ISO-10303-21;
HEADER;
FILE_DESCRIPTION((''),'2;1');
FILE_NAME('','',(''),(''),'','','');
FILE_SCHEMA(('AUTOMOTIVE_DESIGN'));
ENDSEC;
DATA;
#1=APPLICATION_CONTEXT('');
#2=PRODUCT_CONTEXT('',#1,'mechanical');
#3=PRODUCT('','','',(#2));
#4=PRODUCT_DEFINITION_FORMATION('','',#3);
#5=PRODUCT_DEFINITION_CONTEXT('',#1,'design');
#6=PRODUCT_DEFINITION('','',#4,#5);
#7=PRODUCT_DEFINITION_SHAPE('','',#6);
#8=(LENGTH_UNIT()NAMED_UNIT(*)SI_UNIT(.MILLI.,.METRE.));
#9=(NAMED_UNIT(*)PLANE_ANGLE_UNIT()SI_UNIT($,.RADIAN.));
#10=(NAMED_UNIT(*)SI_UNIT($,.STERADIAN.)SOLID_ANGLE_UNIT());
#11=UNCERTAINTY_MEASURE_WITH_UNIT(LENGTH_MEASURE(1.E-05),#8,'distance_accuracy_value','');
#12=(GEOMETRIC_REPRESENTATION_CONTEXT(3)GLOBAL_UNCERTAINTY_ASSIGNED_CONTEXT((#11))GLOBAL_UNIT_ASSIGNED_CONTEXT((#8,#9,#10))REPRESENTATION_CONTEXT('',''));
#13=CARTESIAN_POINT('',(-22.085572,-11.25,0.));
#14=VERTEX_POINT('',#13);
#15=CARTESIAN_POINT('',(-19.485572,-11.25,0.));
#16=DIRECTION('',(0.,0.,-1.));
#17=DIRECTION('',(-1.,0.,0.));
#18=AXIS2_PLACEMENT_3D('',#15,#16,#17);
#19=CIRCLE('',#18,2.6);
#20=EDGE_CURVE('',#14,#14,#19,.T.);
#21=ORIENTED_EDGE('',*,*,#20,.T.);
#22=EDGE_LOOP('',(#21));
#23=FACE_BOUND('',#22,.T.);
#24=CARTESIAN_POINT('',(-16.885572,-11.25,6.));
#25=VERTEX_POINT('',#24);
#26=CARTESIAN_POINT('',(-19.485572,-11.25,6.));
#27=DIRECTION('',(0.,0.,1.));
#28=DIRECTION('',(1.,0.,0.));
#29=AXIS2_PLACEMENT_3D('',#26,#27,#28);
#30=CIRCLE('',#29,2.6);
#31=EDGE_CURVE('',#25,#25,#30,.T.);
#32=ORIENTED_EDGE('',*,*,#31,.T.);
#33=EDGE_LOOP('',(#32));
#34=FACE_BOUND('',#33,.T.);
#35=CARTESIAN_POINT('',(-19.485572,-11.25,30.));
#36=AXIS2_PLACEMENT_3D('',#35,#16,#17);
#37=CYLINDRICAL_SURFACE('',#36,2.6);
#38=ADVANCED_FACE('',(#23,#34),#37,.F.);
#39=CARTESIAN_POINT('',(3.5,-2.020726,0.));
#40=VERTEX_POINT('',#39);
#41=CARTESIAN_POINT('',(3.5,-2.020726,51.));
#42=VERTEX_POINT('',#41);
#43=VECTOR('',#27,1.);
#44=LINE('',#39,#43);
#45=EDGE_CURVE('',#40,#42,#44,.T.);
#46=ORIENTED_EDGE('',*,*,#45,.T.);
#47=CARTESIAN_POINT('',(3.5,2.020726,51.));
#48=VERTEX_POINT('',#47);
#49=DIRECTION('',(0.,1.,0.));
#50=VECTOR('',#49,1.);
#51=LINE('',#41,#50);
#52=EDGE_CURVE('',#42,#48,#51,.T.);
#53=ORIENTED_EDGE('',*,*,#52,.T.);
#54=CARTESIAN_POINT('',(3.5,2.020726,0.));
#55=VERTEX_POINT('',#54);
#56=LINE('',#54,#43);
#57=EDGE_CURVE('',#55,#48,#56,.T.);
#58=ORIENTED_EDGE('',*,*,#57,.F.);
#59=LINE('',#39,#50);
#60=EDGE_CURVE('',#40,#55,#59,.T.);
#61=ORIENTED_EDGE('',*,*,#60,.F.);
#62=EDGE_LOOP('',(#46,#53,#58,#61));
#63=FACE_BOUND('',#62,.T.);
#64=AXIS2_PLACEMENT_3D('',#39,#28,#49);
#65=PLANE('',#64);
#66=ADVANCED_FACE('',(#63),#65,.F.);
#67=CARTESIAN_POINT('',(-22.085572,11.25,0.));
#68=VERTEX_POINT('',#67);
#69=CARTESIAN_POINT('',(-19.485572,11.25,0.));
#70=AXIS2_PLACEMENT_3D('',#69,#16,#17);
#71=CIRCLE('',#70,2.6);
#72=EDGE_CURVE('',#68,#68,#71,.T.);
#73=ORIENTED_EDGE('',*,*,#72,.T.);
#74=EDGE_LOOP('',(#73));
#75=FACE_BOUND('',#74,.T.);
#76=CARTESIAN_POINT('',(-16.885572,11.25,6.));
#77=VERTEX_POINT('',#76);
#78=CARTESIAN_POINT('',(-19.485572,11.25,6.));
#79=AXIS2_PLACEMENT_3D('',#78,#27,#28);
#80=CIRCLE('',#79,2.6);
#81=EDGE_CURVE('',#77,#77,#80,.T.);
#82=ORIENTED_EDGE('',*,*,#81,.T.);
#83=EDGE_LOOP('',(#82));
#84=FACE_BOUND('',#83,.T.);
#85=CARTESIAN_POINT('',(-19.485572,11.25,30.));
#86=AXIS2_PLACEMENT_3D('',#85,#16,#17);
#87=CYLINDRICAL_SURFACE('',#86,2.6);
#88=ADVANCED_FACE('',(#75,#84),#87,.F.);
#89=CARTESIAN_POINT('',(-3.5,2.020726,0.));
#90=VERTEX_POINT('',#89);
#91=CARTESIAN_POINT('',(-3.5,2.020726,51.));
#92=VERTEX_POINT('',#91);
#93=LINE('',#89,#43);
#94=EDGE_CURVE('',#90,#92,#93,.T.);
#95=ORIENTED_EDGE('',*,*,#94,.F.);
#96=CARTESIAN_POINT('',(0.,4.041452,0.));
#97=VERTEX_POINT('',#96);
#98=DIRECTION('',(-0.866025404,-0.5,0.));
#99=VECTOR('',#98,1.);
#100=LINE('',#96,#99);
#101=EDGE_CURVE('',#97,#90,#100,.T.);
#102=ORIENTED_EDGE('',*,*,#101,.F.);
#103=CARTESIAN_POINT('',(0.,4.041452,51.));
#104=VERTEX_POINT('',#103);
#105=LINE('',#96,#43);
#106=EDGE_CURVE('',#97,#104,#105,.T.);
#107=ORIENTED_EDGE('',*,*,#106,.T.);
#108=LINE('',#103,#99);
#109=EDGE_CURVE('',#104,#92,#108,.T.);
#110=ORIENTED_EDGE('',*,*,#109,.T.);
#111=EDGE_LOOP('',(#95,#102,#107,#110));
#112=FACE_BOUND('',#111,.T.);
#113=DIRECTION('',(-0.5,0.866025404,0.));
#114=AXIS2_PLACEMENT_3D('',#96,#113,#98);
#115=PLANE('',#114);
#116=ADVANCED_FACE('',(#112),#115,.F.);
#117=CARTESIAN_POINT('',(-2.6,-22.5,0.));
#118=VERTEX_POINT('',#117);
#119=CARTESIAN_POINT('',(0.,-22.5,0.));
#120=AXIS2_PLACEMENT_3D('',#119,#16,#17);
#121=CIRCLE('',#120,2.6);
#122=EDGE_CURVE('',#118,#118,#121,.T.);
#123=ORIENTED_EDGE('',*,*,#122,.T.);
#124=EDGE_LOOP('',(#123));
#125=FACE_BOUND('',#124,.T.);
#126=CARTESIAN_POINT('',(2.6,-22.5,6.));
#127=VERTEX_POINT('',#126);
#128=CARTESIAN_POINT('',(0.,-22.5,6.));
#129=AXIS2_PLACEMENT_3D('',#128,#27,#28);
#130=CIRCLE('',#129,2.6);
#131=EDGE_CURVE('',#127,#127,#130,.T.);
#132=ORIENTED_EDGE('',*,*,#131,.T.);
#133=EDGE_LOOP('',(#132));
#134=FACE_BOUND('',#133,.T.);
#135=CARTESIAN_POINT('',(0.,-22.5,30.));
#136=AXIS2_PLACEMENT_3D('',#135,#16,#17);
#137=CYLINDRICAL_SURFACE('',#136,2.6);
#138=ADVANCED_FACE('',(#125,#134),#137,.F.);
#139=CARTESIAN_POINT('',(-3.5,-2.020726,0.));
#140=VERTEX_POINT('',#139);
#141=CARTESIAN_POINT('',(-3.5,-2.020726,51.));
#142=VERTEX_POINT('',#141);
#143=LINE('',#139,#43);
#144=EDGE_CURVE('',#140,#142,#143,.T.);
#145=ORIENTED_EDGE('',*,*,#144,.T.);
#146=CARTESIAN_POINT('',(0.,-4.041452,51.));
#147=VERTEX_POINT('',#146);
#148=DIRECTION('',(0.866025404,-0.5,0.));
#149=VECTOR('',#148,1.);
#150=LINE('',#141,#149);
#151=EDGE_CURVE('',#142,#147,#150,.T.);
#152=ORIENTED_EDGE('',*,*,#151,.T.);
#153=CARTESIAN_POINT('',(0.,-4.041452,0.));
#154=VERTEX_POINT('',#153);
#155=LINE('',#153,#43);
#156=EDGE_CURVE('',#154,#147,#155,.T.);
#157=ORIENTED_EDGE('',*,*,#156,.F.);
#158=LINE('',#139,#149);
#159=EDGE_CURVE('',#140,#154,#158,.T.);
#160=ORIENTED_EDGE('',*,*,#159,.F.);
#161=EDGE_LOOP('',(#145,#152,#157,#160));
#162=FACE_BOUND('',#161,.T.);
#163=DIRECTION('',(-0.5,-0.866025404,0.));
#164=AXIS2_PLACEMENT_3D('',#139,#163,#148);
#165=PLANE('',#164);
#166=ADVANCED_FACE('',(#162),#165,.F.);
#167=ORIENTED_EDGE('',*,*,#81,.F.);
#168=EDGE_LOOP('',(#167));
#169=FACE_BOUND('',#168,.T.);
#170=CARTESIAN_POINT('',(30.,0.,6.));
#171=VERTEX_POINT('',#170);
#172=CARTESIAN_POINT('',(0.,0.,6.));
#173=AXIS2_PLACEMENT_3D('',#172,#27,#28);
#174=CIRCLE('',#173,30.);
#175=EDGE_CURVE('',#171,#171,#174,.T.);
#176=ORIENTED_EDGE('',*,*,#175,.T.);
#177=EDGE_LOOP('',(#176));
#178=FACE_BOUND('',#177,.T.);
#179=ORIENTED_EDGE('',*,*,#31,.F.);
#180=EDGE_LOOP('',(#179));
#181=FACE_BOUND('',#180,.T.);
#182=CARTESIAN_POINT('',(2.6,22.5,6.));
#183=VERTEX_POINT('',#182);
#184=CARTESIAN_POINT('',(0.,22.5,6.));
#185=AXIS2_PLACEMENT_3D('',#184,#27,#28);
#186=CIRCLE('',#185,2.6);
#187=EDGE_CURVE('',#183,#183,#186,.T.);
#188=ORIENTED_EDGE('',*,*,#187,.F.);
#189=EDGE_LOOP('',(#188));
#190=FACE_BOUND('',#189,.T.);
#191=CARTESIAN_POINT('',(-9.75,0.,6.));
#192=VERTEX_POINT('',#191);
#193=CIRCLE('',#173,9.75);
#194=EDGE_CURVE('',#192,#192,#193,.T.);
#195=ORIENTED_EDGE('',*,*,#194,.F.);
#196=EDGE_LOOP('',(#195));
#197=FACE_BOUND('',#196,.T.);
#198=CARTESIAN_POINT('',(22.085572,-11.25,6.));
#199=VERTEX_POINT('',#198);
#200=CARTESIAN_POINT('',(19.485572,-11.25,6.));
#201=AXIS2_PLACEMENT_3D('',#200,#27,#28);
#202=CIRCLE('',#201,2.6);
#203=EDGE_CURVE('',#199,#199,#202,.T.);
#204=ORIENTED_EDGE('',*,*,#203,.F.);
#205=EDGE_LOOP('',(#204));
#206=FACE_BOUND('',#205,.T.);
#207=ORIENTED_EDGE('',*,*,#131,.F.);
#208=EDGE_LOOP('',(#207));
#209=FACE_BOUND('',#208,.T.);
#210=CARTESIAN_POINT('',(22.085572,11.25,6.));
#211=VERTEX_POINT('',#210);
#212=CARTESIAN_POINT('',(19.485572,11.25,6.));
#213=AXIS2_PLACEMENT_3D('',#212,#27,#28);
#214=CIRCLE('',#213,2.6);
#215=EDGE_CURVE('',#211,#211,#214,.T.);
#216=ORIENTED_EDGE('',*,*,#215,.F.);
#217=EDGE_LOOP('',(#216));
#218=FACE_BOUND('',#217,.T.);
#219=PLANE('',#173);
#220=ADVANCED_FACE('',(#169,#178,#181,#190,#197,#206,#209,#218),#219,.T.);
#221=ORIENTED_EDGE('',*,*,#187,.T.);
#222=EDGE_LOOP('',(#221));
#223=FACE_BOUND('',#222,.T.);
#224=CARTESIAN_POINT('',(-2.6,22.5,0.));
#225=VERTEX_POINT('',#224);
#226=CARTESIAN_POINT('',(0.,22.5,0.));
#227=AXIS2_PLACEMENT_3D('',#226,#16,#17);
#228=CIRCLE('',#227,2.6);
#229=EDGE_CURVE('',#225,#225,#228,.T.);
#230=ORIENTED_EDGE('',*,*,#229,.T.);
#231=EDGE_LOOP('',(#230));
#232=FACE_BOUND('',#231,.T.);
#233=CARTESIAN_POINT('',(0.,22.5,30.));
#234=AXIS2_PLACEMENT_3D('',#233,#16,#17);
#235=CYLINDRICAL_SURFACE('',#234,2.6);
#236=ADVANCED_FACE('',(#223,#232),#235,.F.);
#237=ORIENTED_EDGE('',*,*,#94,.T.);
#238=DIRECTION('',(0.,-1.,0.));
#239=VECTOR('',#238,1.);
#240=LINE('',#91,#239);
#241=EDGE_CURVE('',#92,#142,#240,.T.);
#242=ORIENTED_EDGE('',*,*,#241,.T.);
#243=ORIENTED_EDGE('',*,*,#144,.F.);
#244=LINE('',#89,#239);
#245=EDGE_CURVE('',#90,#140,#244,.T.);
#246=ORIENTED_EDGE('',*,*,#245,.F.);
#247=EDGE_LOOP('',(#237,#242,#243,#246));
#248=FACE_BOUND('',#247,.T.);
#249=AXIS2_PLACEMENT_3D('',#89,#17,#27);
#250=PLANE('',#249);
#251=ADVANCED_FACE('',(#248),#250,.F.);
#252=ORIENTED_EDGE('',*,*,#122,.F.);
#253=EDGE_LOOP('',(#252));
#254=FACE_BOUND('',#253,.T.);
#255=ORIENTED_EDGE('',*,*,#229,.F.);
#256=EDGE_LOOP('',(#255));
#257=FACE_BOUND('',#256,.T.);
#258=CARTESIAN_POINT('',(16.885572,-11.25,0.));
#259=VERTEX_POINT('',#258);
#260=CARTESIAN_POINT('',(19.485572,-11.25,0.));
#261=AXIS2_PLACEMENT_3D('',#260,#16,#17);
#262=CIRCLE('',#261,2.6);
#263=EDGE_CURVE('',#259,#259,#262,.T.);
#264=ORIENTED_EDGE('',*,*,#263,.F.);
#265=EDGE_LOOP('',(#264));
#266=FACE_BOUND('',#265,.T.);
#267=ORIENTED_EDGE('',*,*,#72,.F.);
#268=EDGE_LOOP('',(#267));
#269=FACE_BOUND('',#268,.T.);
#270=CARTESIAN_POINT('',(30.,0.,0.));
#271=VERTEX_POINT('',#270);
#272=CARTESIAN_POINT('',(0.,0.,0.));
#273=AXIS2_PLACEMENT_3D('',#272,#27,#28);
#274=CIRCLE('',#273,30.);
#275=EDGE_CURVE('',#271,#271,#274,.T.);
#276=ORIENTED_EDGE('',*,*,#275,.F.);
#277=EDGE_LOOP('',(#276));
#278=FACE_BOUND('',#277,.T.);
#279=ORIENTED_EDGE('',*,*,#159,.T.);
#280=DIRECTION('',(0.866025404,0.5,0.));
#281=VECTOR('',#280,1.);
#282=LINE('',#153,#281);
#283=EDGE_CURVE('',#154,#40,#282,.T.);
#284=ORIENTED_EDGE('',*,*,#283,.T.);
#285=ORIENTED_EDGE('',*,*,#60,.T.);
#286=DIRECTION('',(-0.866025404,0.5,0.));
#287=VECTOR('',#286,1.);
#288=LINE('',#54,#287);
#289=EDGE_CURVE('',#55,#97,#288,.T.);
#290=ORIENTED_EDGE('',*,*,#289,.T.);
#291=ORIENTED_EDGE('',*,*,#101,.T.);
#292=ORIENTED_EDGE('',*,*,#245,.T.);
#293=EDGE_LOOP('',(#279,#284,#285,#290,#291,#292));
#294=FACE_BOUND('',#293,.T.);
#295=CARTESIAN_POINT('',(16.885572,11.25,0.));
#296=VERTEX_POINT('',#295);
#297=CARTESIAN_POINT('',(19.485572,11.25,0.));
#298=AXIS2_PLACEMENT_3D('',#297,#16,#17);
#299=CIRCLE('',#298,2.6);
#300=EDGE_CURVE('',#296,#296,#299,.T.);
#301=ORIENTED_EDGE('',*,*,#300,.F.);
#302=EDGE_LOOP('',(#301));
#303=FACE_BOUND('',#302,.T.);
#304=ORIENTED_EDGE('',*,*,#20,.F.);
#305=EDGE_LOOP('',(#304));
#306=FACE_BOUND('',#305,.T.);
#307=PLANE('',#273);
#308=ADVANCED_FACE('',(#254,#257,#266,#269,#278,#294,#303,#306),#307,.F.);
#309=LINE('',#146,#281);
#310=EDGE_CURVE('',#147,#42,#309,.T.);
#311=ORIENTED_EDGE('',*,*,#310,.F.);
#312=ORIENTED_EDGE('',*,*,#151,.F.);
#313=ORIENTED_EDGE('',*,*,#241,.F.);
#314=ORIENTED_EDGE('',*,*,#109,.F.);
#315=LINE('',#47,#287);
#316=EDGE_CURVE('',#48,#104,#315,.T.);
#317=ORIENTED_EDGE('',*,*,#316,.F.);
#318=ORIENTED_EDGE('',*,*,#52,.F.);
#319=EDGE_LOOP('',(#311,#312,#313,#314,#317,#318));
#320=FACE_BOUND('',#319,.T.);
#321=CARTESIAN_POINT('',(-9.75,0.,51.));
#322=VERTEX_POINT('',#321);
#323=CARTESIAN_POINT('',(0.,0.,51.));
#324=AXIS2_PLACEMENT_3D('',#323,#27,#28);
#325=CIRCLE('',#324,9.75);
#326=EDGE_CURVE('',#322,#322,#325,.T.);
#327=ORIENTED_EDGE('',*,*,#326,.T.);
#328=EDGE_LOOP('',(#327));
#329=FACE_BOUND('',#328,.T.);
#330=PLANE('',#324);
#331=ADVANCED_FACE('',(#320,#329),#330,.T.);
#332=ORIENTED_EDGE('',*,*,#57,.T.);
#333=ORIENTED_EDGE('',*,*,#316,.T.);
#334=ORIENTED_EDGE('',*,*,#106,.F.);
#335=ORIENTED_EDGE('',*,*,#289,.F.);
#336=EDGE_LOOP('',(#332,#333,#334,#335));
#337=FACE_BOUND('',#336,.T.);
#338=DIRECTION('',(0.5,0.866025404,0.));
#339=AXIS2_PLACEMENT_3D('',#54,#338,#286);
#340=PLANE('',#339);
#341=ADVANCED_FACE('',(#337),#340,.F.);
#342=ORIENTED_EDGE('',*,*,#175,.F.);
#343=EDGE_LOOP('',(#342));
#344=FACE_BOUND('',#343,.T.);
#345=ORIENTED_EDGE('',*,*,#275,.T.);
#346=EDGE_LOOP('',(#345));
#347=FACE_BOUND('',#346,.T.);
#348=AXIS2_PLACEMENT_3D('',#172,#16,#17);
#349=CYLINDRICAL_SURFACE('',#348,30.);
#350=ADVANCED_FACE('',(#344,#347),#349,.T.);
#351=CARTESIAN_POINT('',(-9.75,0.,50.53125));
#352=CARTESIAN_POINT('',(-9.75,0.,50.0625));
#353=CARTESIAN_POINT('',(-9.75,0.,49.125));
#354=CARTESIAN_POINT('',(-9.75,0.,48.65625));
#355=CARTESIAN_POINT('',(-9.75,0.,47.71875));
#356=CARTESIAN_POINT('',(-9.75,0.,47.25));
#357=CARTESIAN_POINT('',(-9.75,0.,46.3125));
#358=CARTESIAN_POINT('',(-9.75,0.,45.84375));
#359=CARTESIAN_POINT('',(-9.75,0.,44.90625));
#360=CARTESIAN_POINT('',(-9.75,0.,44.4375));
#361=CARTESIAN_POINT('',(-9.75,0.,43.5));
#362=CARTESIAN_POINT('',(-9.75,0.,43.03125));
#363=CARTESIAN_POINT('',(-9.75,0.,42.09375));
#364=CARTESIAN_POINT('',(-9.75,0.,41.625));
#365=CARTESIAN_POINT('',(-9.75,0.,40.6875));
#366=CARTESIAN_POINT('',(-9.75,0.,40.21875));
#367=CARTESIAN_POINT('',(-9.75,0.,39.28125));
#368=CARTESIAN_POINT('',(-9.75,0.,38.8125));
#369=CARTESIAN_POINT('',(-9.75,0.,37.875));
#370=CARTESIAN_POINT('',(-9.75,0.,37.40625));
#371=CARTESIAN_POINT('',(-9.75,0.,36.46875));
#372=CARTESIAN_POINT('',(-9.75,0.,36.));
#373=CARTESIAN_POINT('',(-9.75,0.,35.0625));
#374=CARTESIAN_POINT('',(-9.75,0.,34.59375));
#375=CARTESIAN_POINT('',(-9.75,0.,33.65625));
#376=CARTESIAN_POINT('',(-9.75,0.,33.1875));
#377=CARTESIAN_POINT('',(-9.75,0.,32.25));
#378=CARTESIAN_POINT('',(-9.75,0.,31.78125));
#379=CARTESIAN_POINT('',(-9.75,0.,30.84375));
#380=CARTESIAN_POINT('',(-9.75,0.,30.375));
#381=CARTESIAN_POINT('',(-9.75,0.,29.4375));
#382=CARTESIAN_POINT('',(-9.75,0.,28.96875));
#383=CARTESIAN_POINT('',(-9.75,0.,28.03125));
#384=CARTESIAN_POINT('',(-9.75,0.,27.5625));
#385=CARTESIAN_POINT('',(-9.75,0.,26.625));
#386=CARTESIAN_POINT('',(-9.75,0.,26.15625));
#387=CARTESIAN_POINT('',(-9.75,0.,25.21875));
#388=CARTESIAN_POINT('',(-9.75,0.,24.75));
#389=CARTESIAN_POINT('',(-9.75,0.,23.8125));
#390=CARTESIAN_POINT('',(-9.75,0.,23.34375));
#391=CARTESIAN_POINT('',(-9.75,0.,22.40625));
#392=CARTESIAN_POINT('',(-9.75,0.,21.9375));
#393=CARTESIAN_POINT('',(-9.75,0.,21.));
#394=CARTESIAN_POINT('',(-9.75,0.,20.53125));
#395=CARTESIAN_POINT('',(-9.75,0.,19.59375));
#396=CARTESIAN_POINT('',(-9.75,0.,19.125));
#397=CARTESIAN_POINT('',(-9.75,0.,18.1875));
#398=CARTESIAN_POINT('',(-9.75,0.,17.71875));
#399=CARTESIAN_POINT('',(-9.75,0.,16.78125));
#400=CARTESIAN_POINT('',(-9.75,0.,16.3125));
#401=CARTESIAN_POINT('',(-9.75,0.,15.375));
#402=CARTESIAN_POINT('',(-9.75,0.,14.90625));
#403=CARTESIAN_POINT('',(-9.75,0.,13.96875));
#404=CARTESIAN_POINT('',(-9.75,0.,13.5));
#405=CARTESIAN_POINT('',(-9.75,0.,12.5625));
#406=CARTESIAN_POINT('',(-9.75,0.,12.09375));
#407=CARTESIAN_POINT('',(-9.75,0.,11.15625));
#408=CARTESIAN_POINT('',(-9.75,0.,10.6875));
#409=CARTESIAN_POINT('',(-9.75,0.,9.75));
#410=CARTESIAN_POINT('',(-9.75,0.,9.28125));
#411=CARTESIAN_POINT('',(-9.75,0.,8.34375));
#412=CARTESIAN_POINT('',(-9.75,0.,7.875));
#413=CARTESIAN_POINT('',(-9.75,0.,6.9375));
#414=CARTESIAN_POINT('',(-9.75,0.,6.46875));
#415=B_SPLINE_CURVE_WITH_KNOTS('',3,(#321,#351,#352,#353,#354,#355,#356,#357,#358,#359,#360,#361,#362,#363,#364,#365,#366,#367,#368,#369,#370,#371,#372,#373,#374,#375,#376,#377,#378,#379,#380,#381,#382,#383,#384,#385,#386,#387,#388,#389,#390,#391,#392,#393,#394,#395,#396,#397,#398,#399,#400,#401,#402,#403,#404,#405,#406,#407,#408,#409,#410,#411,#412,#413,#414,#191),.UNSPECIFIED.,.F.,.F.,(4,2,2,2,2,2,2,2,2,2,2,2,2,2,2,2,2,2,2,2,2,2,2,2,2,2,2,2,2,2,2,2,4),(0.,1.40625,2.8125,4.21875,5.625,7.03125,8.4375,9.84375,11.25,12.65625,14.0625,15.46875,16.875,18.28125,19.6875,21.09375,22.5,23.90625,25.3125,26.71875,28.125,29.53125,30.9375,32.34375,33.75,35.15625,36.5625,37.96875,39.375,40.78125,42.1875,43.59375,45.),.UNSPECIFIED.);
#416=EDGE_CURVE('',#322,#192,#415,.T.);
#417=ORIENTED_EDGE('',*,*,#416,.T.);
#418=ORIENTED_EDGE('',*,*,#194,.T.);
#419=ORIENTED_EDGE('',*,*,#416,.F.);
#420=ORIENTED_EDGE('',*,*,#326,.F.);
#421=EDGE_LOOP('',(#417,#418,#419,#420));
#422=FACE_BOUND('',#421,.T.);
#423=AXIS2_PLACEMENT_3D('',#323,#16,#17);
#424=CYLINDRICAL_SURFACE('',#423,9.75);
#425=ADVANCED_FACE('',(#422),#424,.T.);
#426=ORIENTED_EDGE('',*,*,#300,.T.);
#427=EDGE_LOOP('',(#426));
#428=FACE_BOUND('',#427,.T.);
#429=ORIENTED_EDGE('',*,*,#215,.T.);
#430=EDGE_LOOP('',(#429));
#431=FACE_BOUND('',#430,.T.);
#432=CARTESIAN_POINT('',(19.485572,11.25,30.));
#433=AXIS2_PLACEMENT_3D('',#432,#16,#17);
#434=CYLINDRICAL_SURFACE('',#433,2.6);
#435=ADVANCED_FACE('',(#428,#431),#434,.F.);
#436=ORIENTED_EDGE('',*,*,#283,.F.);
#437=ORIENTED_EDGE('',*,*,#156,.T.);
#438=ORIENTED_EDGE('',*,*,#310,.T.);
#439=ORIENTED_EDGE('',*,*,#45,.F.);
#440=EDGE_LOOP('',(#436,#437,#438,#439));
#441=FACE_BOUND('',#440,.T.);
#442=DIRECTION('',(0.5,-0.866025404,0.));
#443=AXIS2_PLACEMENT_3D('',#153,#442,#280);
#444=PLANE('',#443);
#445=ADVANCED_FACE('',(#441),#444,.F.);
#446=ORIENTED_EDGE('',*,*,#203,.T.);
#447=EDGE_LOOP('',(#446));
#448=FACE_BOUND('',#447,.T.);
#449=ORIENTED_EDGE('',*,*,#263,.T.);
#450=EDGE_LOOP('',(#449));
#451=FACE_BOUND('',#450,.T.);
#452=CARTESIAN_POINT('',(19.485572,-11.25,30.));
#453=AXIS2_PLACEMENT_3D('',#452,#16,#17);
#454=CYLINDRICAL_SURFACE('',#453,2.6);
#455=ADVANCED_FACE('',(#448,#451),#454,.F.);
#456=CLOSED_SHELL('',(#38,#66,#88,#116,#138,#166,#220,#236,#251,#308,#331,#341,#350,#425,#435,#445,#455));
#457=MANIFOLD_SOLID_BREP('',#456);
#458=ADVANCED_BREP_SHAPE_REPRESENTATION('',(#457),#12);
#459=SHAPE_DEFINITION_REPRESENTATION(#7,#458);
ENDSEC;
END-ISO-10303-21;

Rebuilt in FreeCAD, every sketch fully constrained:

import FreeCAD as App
import Part
import Sketcher

V = App.Vector
Q = App.Units.Quantity


def add_polygon(sketch, points):
    """Adds a closed chain of lines whose ends are joined by coincident constraints."""
    first, n = sketch.GeometryCount, len(points)
    for a, b in zip(points, points[1:] + points[:1]):
        sketch.addGeometry(Part.LineSegment(App.Vector(*a, 0), App.Vector(*b, 0)), False)
    for i in range(n):
        sketch.addConstraint(Sketcher.Constraint("Coincident", first + i, 2, first + (i + 1) % n, 1))

doc = App.newDocument("Part")
body = doc.addObject("PartDesign::Body", "Body")

sketch1 = body.newObject("Sketcher::SketchObject", "Sketch")
sketch1.AttachmentSupport = (doc.getObject("XY_Plane"), [""])
sketch1.MapMode = "FlatFace"
sketch1.addGeometry(Part.Circle(V(0, 0, 0), V(0, 0, 1), 30), False)
sketch1.addConstraint(Sketcher.Constraint("Coincident", 0, 3, -1, 1))
sketch1.addConstraint(Sketcher.Constraint("Diameter", 0, Q("60 mm")))
pad1 = body.newObject("PartDesign::Pad", "Pad")
pad1.Profile = sketch1
pad1.Length = 6

sketch2 = body.newObject("Sketcher::SketchObject", "Sketch001")
sketch2.AttachmentSupport = (doc.getObject("XY_Plane"), [""])
sketch2.MapMode = "FlatFace"
sketch2.AttachmentOffset = App.Placement(V(0, 0, 6), App.Rotation())
sketch2.addGeometry(Part.Circle(V(0, 0, 0), V(0, 0, 1), 9.75), False)
sketch2.addConstraint(Sketcher.Constraint("Coincident", 0, 3, -1, 1))
sketch2.addConstraint(Sketcher.Constraint("Diameter", 0, Q("19.5 mm")))
pad2 = body.newObject("PartDesign::Pad", "Pad001")
pad2.Profile = sketch2
pad2.Length = 45

sketch3 = body.newObject("Sketcher::SketchObject", "Sketch002")
sketch3.AttachmentSupport = (doc.getObject("XY_Plane"), [""])
sketch3.MapMode = "FlatFace"
sketch3.AttachmentOffset = App.Placement(V(0, 0, 51), App.Rotation())
add_polygon(sketch3, [(0, 4.041452), (-3.5, 2.020726), (-3.5, -2.020726), (0, -4.041452), (3.5, -2.020726), (3.5, 2.020726)])
sketch3.addConstraint(Sketcher.Constraint("Vertical", 1))
sketch3.addConstraint(Sketcher.Constraint("Vertical", 4))
sketch3.addConstraint(Sketcher.Constraint("Symmetric", 0, 2, 3, 2, -1, 1))
sketch3.addConstraint(Sketcher.Constraint("Symmetric", 2, 2, 5, 2, -1, 1))
sketch3.addConstraint(Sketcher.Constraint("PointOnObject", 2, 2, -2))
sketch3.addConstraint(Sketcher.Constraint("Parallel", 2, 5))
sketch3.addConstraint(Sketcher.Constraint("Horizontal", 1, 2, 3, 2))
sketch3.addConstraint(Sketcher.Constraint("Angle", 0, Q("-150 deg")))
sketch3.addConstraint(Sketcher.Constraint("DistanceX", 1, 2, 3, 2, Q("7 mm")))
sketch3.addConstraint(Sketcher.Constraint("DistanceY", 1, 2, 1, 1, Q("4.041452 mm")))
pocket1 = body.newObject("PartDesign::Pocket", "Pocket")
pocket1.Profile = sketch3
pocket1.Type = "ThroughAll"

sketch4 = body.newObject("Sketcher::SketchObject", "Sketch003")
sketch4.AttachmentSupport = (doc.getObject("XY_Plane"), [""])
sketch4.MapMode = "FlatFace"
sketch4.addGeometry(Part.Circle(V(0, 22.5, 0), V(0, 0, 1), 2.6), False)
sketch4.addGeometry(Part.Circle(V(-19.485572, 11.25, 0), V(0, 0, 1), 2.6), False)
sketch4.addGeometry(Part.Circle(V(-19.485572, -11.25, 0), V(0, 0, 1), 2.6), False)
sketch4.addGeometry(Part.Circle(V(0, -22.5, 0), V(0, 0, 1), 2.6), False)
sketch4.addGeometry(Part.Circle(V(19.485572, -11.25, 0), V(0, 0, 1), 2.6), False)
sketch4.addGeometry(Part.Circle(V(19.485572, 11.25, 0), V(0, 0, 1), 2.6), False)
sketch4.addConstraint(Sketcher.Constraint("Equal", 0, 1))
sketch4.addConstraint(Sketcher.Constraint("Equal", 1, 2))
sketch4.addConstraint(Sketcher.Constraint("Equal", 2, 3))
sketch4.addConstraint(Sketcher.Constraint("Equal", 3, 4))
sketch4.addConstraint(Sketcher.Constraint("Equal", 4, 5))
sketch4.addConstraint(Sketcher.Constraint("Symmetric", 0, 3, 3, 3, -1, 1))
sketch4.addConstraint(Sketcher.Constraint("Symmetric", 1, 3, 4, 3, -1, 1))
sketch4.addConstraint(Sketcher.Constraint("Symmetric", 2, 3, 5, 3, -1, 1))
sketch4.addConstraint(Sketcher.Constraint("Symmetric", 2, 3, 4, 3, -2))
sketch4.addConstraint(Sketcher.Constraint("PointOnObject", 0, 3, -2))
sketch4.addConstraint(Sketcher.Constraint("Diameter", 0, Q("5.2 mm")))
sketch4.addConstraint(Sketcher.Constraint("DistanceY", 3, 3, 0, 3, Q("45 mm")))
sketch4.addConstraint(Sketcher.Constraint("DistanceY", 2, 3, 1, 3, Q("22.5 mm")))
sketch4.addConstraint(Sketcher.Constraint("DistanceX", 1, 3, -1, 1, Q("19.485572 mm")))
pocket2 = body.newObject("PartDesign::Pocket", "Pocket001")
pocket2.Profile = sketch4
pocket2.Length = 30
pocket2.Reversed = True

doc.recompute()
